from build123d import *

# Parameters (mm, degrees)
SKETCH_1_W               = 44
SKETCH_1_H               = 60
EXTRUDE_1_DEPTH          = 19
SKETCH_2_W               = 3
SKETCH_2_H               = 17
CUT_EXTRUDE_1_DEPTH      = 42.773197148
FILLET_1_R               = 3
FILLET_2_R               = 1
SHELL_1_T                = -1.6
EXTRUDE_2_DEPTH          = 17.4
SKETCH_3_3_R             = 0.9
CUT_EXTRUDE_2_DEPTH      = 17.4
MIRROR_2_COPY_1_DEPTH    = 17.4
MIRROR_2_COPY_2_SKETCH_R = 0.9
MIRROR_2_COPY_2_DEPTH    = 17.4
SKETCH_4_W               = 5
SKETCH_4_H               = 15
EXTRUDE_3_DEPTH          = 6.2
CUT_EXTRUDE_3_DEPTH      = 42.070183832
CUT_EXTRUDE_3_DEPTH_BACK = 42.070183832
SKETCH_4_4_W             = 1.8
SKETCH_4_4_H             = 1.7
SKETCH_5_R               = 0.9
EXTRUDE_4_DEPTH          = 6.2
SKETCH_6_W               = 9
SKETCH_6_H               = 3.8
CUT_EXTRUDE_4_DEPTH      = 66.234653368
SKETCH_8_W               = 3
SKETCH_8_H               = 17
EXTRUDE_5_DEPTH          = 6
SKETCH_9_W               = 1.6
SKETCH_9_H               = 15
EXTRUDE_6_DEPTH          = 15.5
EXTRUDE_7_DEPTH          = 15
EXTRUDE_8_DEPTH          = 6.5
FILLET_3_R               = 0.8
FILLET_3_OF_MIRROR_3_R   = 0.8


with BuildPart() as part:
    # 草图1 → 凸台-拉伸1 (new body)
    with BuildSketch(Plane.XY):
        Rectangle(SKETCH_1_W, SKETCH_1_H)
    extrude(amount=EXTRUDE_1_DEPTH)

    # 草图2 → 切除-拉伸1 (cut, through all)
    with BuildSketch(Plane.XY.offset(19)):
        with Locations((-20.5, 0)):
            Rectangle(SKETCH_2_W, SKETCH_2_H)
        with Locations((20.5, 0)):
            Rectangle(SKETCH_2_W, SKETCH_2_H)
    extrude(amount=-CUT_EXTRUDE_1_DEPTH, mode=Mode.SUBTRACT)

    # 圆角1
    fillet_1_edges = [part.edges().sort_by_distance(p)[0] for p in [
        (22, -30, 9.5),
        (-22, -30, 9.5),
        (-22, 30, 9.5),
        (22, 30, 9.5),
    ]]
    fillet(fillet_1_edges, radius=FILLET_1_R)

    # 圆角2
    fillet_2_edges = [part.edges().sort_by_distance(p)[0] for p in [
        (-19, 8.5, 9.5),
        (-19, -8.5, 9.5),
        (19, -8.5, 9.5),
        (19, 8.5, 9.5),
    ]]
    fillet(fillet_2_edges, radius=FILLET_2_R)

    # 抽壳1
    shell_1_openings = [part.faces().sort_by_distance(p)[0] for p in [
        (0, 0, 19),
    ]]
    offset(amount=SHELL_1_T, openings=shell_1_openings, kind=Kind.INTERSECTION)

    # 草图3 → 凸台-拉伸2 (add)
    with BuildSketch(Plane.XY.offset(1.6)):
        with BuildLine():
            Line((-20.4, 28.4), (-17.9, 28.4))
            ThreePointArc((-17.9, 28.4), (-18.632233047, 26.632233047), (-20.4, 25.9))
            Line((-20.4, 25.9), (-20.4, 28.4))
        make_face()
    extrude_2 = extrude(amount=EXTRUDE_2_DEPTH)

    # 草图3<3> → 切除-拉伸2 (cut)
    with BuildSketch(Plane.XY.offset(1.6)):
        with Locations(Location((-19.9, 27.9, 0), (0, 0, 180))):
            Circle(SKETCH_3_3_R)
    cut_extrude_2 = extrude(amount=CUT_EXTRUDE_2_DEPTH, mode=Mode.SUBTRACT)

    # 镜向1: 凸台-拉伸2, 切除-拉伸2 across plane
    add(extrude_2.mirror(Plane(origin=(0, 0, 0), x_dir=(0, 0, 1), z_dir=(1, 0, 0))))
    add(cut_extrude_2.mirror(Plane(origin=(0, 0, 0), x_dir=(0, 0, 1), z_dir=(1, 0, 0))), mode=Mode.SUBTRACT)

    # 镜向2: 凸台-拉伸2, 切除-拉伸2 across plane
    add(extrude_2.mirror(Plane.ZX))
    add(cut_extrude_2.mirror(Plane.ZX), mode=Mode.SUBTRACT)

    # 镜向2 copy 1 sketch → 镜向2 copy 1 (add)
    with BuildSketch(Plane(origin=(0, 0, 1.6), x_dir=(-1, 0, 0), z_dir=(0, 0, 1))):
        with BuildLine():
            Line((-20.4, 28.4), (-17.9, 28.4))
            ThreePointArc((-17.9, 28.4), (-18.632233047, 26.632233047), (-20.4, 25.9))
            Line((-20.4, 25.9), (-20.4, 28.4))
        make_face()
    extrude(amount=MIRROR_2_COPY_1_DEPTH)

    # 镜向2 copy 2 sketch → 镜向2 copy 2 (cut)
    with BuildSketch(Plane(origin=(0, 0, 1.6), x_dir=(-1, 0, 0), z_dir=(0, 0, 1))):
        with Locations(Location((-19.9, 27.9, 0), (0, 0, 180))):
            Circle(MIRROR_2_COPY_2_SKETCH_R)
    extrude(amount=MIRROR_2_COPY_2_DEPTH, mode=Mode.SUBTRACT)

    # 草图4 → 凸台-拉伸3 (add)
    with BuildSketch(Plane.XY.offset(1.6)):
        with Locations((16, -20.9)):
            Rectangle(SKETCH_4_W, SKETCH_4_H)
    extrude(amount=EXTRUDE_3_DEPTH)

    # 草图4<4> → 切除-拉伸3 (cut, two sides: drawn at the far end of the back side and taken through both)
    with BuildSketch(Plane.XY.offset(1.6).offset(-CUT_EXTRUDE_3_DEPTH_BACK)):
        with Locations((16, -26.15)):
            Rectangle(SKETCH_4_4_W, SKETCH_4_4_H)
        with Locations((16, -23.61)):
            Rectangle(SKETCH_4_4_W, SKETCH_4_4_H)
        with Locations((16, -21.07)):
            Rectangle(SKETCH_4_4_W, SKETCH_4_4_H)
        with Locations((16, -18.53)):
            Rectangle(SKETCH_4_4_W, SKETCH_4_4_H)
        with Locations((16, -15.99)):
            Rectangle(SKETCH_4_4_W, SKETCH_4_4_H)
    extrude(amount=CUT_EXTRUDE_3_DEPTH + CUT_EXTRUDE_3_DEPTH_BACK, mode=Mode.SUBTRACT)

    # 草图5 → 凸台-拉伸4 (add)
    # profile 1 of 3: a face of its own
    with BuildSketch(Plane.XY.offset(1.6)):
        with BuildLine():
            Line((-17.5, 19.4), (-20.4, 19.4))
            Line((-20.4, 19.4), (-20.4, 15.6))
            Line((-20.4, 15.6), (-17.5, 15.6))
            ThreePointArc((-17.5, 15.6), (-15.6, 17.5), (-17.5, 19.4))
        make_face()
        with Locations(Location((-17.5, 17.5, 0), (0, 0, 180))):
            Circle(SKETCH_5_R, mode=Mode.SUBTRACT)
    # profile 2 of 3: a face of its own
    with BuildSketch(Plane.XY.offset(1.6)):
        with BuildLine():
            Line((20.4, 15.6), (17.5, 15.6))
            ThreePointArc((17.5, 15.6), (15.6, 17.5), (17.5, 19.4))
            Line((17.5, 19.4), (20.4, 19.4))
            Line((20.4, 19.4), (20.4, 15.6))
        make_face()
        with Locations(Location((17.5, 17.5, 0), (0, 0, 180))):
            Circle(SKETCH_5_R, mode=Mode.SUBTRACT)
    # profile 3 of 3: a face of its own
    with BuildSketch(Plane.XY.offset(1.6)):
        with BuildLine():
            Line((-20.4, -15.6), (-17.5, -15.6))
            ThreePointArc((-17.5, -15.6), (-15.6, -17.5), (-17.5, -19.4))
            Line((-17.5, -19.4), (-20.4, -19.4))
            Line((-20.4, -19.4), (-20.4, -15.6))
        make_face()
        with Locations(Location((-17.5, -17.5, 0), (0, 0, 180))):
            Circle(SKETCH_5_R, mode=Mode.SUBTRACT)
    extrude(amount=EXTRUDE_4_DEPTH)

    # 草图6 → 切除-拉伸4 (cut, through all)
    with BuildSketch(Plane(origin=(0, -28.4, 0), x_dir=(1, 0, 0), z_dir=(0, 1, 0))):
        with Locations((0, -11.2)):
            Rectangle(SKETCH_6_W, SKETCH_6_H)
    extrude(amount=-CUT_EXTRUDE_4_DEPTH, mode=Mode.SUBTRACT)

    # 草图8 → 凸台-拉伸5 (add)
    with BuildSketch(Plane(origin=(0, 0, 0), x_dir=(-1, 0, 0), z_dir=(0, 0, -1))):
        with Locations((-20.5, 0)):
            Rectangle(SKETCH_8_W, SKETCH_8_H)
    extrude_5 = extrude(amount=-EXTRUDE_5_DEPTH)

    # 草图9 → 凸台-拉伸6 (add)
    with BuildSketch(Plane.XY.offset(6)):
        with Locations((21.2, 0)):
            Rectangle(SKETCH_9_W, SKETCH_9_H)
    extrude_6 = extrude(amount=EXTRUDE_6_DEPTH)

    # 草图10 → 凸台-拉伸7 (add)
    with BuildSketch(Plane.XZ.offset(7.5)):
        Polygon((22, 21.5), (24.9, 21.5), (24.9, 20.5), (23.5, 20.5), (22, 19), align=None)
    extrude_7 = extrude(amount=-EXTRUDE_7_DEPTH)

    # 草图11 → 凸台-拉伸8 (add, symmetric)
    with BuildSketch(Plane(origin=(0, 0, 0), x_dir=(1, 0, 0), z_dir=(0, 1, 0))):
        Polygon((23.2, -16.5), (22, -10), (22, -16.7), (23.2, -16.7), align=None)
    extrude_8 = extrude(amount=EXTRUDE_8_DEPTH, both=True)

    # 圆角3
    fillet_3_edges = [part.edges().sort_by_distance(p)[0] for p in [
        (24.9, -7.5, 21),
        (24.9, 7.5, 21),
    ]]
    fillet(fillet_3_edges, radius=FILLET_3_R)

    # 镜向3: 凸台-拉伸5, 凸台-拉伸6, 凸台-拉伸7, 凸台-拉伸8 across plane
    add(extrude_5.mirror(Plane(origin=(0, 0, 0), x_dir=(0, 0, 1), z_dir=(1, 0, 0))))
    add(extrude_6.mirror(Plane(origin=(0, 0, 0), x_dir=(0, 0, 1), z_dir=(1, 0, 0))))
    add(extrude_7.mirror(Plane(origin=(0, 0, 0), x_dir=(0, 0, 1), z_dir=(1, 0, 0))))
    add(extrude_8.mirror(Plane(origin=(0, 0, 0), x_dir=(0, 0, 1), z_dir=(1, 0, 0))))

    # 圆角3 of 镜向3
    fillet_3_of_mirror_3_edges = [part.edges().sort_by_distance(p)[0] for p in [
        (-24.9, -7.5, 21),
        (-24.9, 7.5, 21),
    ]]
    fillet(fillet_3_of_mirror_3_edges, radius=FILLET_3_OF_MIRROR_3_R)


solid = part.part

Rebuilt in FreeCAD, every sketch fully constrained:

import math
import FreeCAD as App
import Part
import Sketcher
from FreeCAD import Vector
Q = App.Units.Quantity


def edges_at(feature, points):
    """Names of the edges that pass closest to the given points."""
    edges = feature.Shape.Edges
    near = lambda p: min(range(len(edges)), key=lambda i: edges[i].distToShape(Part.Vertex(*p))[0])
    return sorted({f"Edge{near(p) + 1}" for p in points})


def faces_at(feature, points):
    """Names of the faces that lie closest to the given points."""
    faces = feature.Shape.Faces
    near = lambda p: min(range(len(faces)), key=lambda i: faces[i].distToShape(Part.Vertex(*p))[0])
    return sorted({f"Face{near(p) + 1}" for p in points})

doc = App.newDocument("Part")
body = doc.addObject("PartDesign::Body", "Body")

# Sketch on XY plane
sketch1 = body.newObject("Sketcher::SketchObject", "Sketch")
sketch1.AttachmentSupport = (doc.getObject("XY_Plane"), [""])
sketch1.MapMode = "FlatFace"
sketch1.addGeometry([
    Part.LineSegment(Vector(-22, 30, 0), Vector(-22, -30, 0)),
    Part.LineSegment(Vector(-22, -30, 0), Vector(22, -30, 0)),
    Part.LineSegment(Vector(22, -30, 0), Vector(22, 30, 0)),
    Part.LineSegment(Vector(22, 30, 0), Vector(-22, 30, 0)),
], False)
sketch1.addConstraint([
    Sketcher.Constraint("Coincident", 0, 2, 1, 1),
    Sketcher.Constraint("Coincident", 1, 2, 2, 1),
    Sketcher.Constraint("Coincident", 2, 2, 3, 1),
    Sketcher.Constraint("Coincident", 3, 2, 0, 1),
    Sketcher.Constraint("Vertical", 0),
    Sketcher.Constraint("Horizontal", 1),
    Sketcher.Constraint("Vertical", 2),
    Sketcher.Constraint("Horizontal", 3),
    Sketcher.Constraint("Symmetric", 0, 2, 2, 2, -1, 1),
    Sketcher.Constraint("DistanceX", 1, 1, 1, 2, 44.0),
    Sketcher.Constraint("DistanceY", 0, 2, 0, 1, 60.0),
])
pad1 = body.newObject("PartDesign::Pad", "Pad")
pad1.Profile = sketch1
pad1.Length = 19

# Sketch on XY plane
sketch2 = body.newObject("Sketcher::SketchObject", "Sketch001")
sketch2.AttachmentSupport = (doc.getObject("XY_Plane"), [""])
sketch2.MapMode = "FlatFace"
sketch2.AttachmentOffset = App.Placement(Vector(0, 0, 19), App.Rotation())
sketch2.addGeometry([
    Part.LineSegment(Vector(-22, 8.5, 0), Vector(-22, -8.5, 0)),  # 0
    Part.LineSegment(Vector(-22, -8.5, 0), Vector(-19, -8.5, 0)),  # 1
    Part.LineSegment(Vector(-19, -8.5, 0), Vector(-19, 8.5, 0)),  # 2
    Part.LineSegment(Vector(-19, 8.5, 0), Vector(-22, 8.5, 0)),  # 3
    Part.LineSegment(Vector(19, 8.5, 0), Vector(19, -8.5, 0)),  # 4
    Part.LineSegment(Vector(19, -8.5, 0), Vector(22, -8.5, 0)),  # 5
    Part.LineSegment(Vector(22, -8.5, 0), Vector(22, 8.5, 0)),  # 6
    Part.LineSegment(Vector(22, 8.5, 0), Vector(19, 8.5, 0)),  # 7
], False)
sketch2.addConstraint([
    Sketcher.Constraint("Coincident", 0, 2, 1, 1),
    Sketcher.Constraint("Coincident", 1, 2, 2, 1),
    Sketcher.Constraint("Coincident", 2, 2, 3, 1),
    Sketcher.Constraint("Coincident", 3, 2, 0, 1),
    Sketcher.Constraint("Coincident", 4, 2, 5, 1),
    Sketcher.Constraint("Coincident", 5, 2, 6, 1),
    Sketcher.Constraint("Coincident", 6, 2, 7, 1),
    Sketcher.Constraint("Coincident", 7, 2, 4, 1),
    Sketcher.Constraint("Vertical", 0),
    Sketcher.Constraint("Horizontal", 1),
    Sketcher.Constraint("Vertical", 2),
    Sketcher.Constraint("Horizontal", 3),
    Sketcher.Constraint("Vertical", 4),
    Sketcher.Constraint("Horizontal", 5),
    Sketcher.Constraint("Vertical", 6),
    Sketcher.Constraint("Horizontal", 7),
    Sketcher.Constraint("Symmetric", 2, 2, 4, 2, -1, 1),
    Sketcher.Constraint("Symmetric", 0, 2, 6, 2, -1, 1),
    Sketcher.Constraint("Horizontal", 1, 2, 4, 2),
    Sketcher.Constraint("DistanceX", 1, 1, 1, 2, 3.0),
    Sketcher.Constraint("DistanceY", 0, 2, 0, 1, 17.0),
    Sketcher.Constraint("DistanceX", 0, 2, -1, 1, 22.0),
])
pocket1 = body.newObject("PartDesign::Pocket", "Pocket")
pocket1.Profile = sketch2
pocket1.Type = "ThroughAll"
doc.recompute()

fillet = body.newObject("PartDesign::Fillet", "Fillet")
fillet.Base = (pocket1, edges_at(pocket1, [
    (22, -30, 9.5),
    (-22, -30, 9.5),
    (-22, 30, 9.5),
    (22, 30, 9.5),
]))
fillet.Radius = 3
doc.recompute()

fillet2 = body.newObject("PartDesign::Fillet", "Fillet001")
fillet2.Base = (fillet, edges_at(fillet, [
    (-19, 8.5, 9.5),
    (-19, -8.5, 9.5),
    (19, -8.5, 9.5),
    (19, 8.5, 9.5),
]))
fillet2.Radius = 1
doc.recompute()

thickness = body.newObject("PartDesign::Thickness", "Thickness")
thickness.Base = (fillet2, faces_at(fillet2, [(0, 0, 19)]))
thickness.Value = 1.6
thickness.Reversed = True
thickness.Join = "Intersection"

# Sketch on XY plane
sketch3 = body.newObject("Sketcher::SketchObject", "Sketch002")
sketch3.AttachmentSupport = (doc.getObject("XY_Plane"), [""])
sketch3.MapMode = "FlatFace"
sketch3.AttachmentOffset = App.Placement(Vector(0, 0, 1.6), App.Rotation())
sketch3.addGeometry([
    Part.LineSegment(Vector(-17.9, 28.4, 0), Vector(-20.4, 28.4, 0)),
    Part.LineSegment(Vector(-20.4, 28.4, 0), Vector(-20.4, 25.9, 0)),
    Part.ArcOfCircle(Part.Circle(Vector(-20.4, 28.4, 0), Vector(0, 0, 1), 2.5), math.radians(-90), math.radians(0)),
], False)
sketch3.addConstraint([
    Sketcher.Constraint("Coincident", 0, 2, 1, 1),
    Sketcher.Constraint("Coincident", 1, 2, 2, 1),
    Sketcher.Constraint("Coincident", 2, 2, 0, 1),
    Sketcher.Constraint("Horizontal", 0),
    Sketcher.Constraint("Vertical", 1),
    Sketcher.Constraint("Coincident", 0, 2, 2, 3),
    Sketcher.Constraint("Radius", 2, 2.5),
    Sketcher.Constraint("DistanceX", 2, 3, -1, 1, 20.4),
    Sketcher.Constraint("DistanceY", -1, 1, 2, 3, 28.4),
])
pad2 = body.newObject("PartDesign::Pad", "Pad001")
pad2.Profile = sketch3
pad2.Length = 17.4

# Sketch on XY plane
sketch4 = body.newObject("Sketcher::SketchObject", "Sketch003")
sketch4.AttachmentSupport = (doc.getObject("XY_Plane"), [""])
sketch4.MapMode = "FlatFace"
sketch4.AttachmentOffset = App.Placement(Vector(0, 0, 1.6), App.Rotation())
sketch4.addGeometry(Part.Circle(Vector(-19.9, 27.9, 0), Vector(0, 0, 1), 0.9), False)
sketch4.addConstraint([
    Sketcher.Constraint("Diameter", 0, 1.8),
    Sketcher.Constraint("DistanceX", 0, 3, -1, 1, 19.9),
    Sketcher.Constraint("DistanceY", -1, 1, 0, 3, 27.9),
])
pocket2 = body.newObject("PartDesign::Pocket", "Pocket001")
pocket2.Profile = sketch4
pocket2.Length = 17.4
pocket2.Reversed = True
doc.recompute()

mirrored = body.newObject("PartDesign::Mirrored", "Mirrored")
mirrored.Originals = [pad2, pocket2]
mirrored.MirrorPlane = (doc.getObject("YZ_Plane"), [""])
body.Tip = mirrored
doc.recompute()

mirrored2 = body.newObject("PartDesign::Mirrored", "Mirrored001")
mirrored2.Originals = [pad2, pocket2]
mirrored2.MirrorPlane = (doc.getObject("XZ_Plane"), [""])
body.Tip = mirrored2

# Sketch on XY plane
sketch5 = body.newObject("Sketcher::SketchObject", "Sketch004")
sketch5.AttachmentSupport = (doc.getObject("XY_Plane"), [""])
sketch5.MapMode = "FlatFace"
sketch5.AttachmentOffset = App.Placement(Vector(0, 0, 1.6), App.Rotation())
sketch5.addGeometry([
    Part.LineSegment(Vector(17.9, -28.4, 0), Vector(20.4, -28.4, 0)),
    Part.LineSegment(Vector(20.4, -28.4, 0), Vector(20.4, -25.9, 0)),
    Part.ArcOfCircle(Part.Circle(Vector(20.4, -28.4, 0), Vector(0, 0, 1), 2.5), math.radians(90), math.radians(180)),
], False)
sketch5.addConstraint([
    Sketcher.Constraint("Coincident", 0, 2, 1, 1),
    Sketcher.Constraint("Coincident", 1, 2, 2, 1),
    Sketcher.Constraint("Coincident", 2, 2, 0, 1),
    Sketcher.Constraint("Horizontal", 0),
    Sketcher.Constraint("Vertical", 1),
    Sketcher.Constraint("Coincident", 0, 2, 2, 3),
    Sketcher.Constraint("Radius", 2, 2.5),
    Sketcher.Constraint("DistanceX", -1, 1, 2, 3, 20.4),
    Sketcher.Constraint("DistanceY", 2, 3, -1, 1, 28.4),
])
pad3 = body.newObject("PartDesign::Pad", "Pad002")
pad3.Profile = sketch5
pad3.Length = 17.4

# Sketch on XY plane
sketch6 = body.newObject("Sketcher::SketchObject", "Sketch005")
sketch6.AttachmentSupport = (doc.getObject("XY_Plane"), [""])
sketch6.MapMode = "FlatFace"
sketch6.AttachmentOffset = App.Placement(Vector(0, 0, 1.6), App.Rotation())
sketch6.addGeometry(Part.Circle(Vector(19.9, -27.9, 0), Vector(0, 0, 1), 0.9), False)
sketch6.addConstraint([
    Sketcher.Constraint("Diameter", 0, 1.8),
    Sketcher.Constraint("DistanceX", -1, 1, 0, 3, 19.9),
    Sketcher.Constraint("DistanceY", 0, 3, -1, 1, 27.9),
])
pocket3 = body.newObject("PartDesign::Pocket", "Pocket002")
pocket3.Profile = sketch6
pocket3.Length = 17.4
pocket3.Reversed = True

# Sketch on XY plane
sketch7 = body.newObject("Sketcher::SketchObject", "Sketch006")
sketch7.AttachmentSupport = (doc.getObject("XY_Plane"), [""])
sketch7.MapMode = "FlatFace"
sketch7.AttachmentOffset = App.Placement(Vector(0, 0, 1.6), App.Rotation())
sketch7.addGeometry([
    Part.LineSegment(Vector(14, -13, 0), Vector(14, -28, 0)),
    Part.LineSegment(Vector(14, -28, 0), Vector(18, -28, 0)),
    Part.LineSegment(Vector(18, -28, 0), Vector(18, -13, 0)),
    Part.LineSegment(Vector(18, -13, 0), Vector(14, -13, 0)),
], False)
sketch7.addConstraint([
    Sketcher.Constraint("Coincident", 0, 2, 1, 1),
    Sketcher.Constraint("Coincident", 1, 2, 2, 1),
    Sketcher.Constraint("Coincident", 2, 2, 3, 1),
    Sketcher.Constraint("Coincident", 3, 2, 0, 1),
    Sketcher.Constraint("Vertical", 0),
    Sketcher.Constraint("Horizontal", 1),
    Sketcher.Constraint("Vertical", 2),
    Sketcher.Constraint("Horizontal", 3),
    Sketcher.Constraint("DistanceX", 1, 1, 1, 2, 5.0),
    Sketcher.Constraint("DistanceY", 0, 2, 0, 1, 15.0),
    Sketcher.Constraint("DistanceX", -1, 1, 0, 2, 13.5),
    Sketcher.Constraint("DistanceY", 0, 2, -1, 1, 28.4),
])
pad4 = body.newObject("PartDesign::Pad", "Pad003")
pad4.Profile = sketch7
pad4.Length = 6.2

# Sketch on XY plane
sketch8 = body.newObject("Sketcher::SketchObject", "Sketch007")
sketch8.AttachmentSupport = (doc.getObject("XY_Plane"), [""])
sketch8.MapMode = "FlatFace"
sketch8.AttachmentOffset = App.Placement(Vector(0, 0, 1.6), App.Rotation())
sketch8.addGeometry([
    Part.LineSegment(Vector(15.1, -25.3, 0), Vector(15.1, -27, 0)),  # 0
    Part.LineSegment(Vector(15.1, -27, 0), Vector(16.9, -27, 0)),  # 1
    Part.LineSegment(Vector(16.9, -27, 0), Vector(16.9, -25.3, 0)),  # 2
    Part.LineSegment(Vector(16.9, -25.3, 0), Vector(15.1, -25.3, 0)),  # 3
    Part.LineSegment(Vector(15.1, -22.8, 0), Vector(15.1, -24.5, 0)),  # 4
    Part.LineSegment(Vector(15.1, -24.5, 0), Vector(16.9, -24.5, 0)),  # 5
    Part.LineSegment(Vector(16.9, -24.5, 0), Vector(16.9, -22.8, 0)),  # 6
    Part.LineSegment(Vector(16.9, -22.8, 0), Vector(15.1, -22.8, 0)),  # 7
    Part.LineSegment(Vector(15.1, -20.2, 0), Vector(15.1, -21.9, 0)),  # 8
    Part.LineSegment(Vector(15.1, -21.9, 0), Vector(16.9, -21.9, 0)),  # 9
    Part.LineSegment(Vector(16.9, -21.9, 0), Vector(16.9, -20.2, 0)),  # 10
    Part.LineSegment(Vector(16.9, -20.2, 0), Vector(15.1, -20.2, 0)),  # 11
    Part.LineSegment(Vector(15.1, -17.7, 0), Vector(15.1, -19.4, 0)),  # 12
    Part.LineSegment(Vector(15.1, -19.4, 0), Vector(16.9, -19.4, 0)),  # 13
    Part.LineSegment(Vector(16.9, -19.4, 0), Vector(16.9, -17.7, 0)),  # 14
    Part.LineSegment(Vector(16.9, -17.7, 0), Vector(15.1, -17.7, 0)),  # 15
    Part.LineSegment(Vector(15.1, -15.1, 0), Vector(15.1, -16.8, 0)),  # 16
    Part.LineSegment(Vector(15.1, -16.8, 0), Vector(16.9, -16.8, 0)),  # 17
    Part.LineSegment(Vector(16.9, -16.8, 0), Vector(16.9, -15.1, 0)),  # 18
    Part.LineSegment(Vector(16.9, -15.1, 0), Vector(15.1, -15.1, 0)),  # 19
], False)
sketch8.addConstraint([
    Sketcher.Constraint("Coincident", 0, 2, 1, 1),
    Sketcher.Constraint("Coincident", 1, 2, 2, 1),
    Sketcher.Constraint("Coincident", 2, 2, 3, 1),
    Sketcher.Constraint("Coincident", 3, 2, 0, 1),
    Sketcher.Constraint("Coincident", 4, 2, 5, 1),
    Sketcher.Constraint("Coincident", 5, 2, 6, 1),
    Sketcher.Constraint("Coincident", 6, 2, 7, 1),
    Sketcher.Constraint("Coincident", 7, 2, 4, 1),
    Sketcher.Constraint("Coincident", 8, 2, 9, 1),
    Sketcher.Constraint("Coincident", 9, 2, 10, 1),
    Sketcher.Constraint("Coincident", 10, 2, 11, 1),
    Sketcher.Constraint("Coincident", 11, 2, 8, 1),
    Sketcher.Constraint("Coincident", 12, 2, 13, 1),
    Sketcher.Constraint("Coincident", 13, 2, 14, 1),
    Sketcher.Constraint("Coincident", 14, 2, 15, 1),
    Sketcher.Constraint("Coincident", 15, 2, 12, 1),
    Sketcher.Constraint("Coincident", 16, 2, 17, 1),
    Sketcher.Constraint("Coincident", 17, 2, 18, 1),
    Sketcher.Constraint("Coincident", 18, 2, 19, 1),
    Sketcher.Constraint("Coincident", 19, 2, 16, 1),
    Sketcher.Constraint("Vertical", 0),
    Sketcher.Constraint("Horizontal", 1),
    Sketcher.Constraint("Vertical", 2),
    Sketcher.Constraint("Horizontal", 3),
    Sketcher.Constraint("Vertical", 4),
    Sketcher.Constraint("Horizontal", 5),
    Sketcher.Constraint("Vertical", 6),
    Sketcher.Constraint("Horizontal", 7),
    Sketcher.Constraint("Vertical", 8),
    Sketcher.Constraint("Horizontal", 9),
    Sketcher.Constraint("Vertical", 10),
    Sketcher.Constraint("Horizontal", 11),
    Sketcher.Constraint("Vertical", 12),
    Sketcher.Constraint("Horizontal", 13),
    Sketcher.Constraint("Vertical", 14),
    Sketcher.Constraint("Horizontal", 15),
    Sketcher.Constraint("Vertical", 16),
    Sketcher.Constraint("Horizontal", 17),
    Sketcher.Constraint("Vertical", 18),
    Sketcher.Constraint("Horizontal", 19),
    Sketcher.Constraint("Vertical", 3, 2, 4, 2),
    Sketcher.Constraint("Vertical", 2, 2, 5, 2),
    Sketcher.Constraint("Vertical", 7, 2, 8, 2),
    Sketcher.Constraint("Vertical", 6, 2, 9, 2),
    Sketcher.Constraint("Vertical", 11, 2, 12, 2),
    Sketcher.Constraint("Vertical", 10, 2, 13, 2),
    Sketcher.Constraint("Vertical", 15, 2, 16, 2),
    Sketcher.Constraint("Vertical", 14, 2, 17, 2),
    Sketcher.Constraint("Equal", 2, 4),
    Sketcher.Constraint("Equal", 6, 8),
    Sketcher.Constraint("Equal", 10, 12),
    Sketcher.Constraint("Equal", 14, 16),
    Sketcher.Constraint("DistanceX", 1, 1, 1, 2, 1.8),
    Sketcher.Constraint("DistanceY", 0, 2, 0, 1, 1.7),
    Sketcher.Constraint("DistanceY", 0, 2, -1, 1, 27.0),
    Sketcher.Constraint("DistanceX", -1, 1, 0, 2, 15.1),
    Sketcher.Constraint("DistanceY", 4, 2, -1, 1, 24.46),
    Sketcher.Constraint("DistanceY", 8, 2, -1, 1, 21.92),
    Sketcher.Constraint("DistanceY", 12, 2, -1, 1, 19.38),
    Sketcher.Constraint("DistanceY", 16, 2, -1, 1, 16.84),
])
pocket4 = body.newObject("PartDesign::Pocket", "Pocket003")
pocket4.Profile = sketch8
pocket4.Type = "ThroughAll"
pocket4.Midplane = True

# Sketch on XY plane
sketch9 = body.newObject("Sketcher::SketchObject", "Sketch008")
sketch9.AttachmentSupport = (doc.getObject("XY_Plane"), [""])
sketch9.MapMode = "FlatFace"
sketch9.AttachmentOffset = App.Placement(Vector(0, 0, 1.6), App.Rotation())
sketch9.addGeometry([
    Part.LineSegment(Vector(-17.5, 19.4, 0), Vector(-20.4, 19.4, 0)),  # 0
    Part.LineSegment(Vector(-20.4, 19.4, 0), Vector(-20.4, 15.6, 0)),  # 1
    Part.LineSegment(Vector(-20.4, 15.6, 0), Vector(-17.5, 15.6, 0)),  # 2
    Part.ArcOfCircle(Part.Circle(Vector(-17.5, 17.5, 0), Vector(0, 0, 1), 1.9), math.radians(-90), math.radians(90)),  # 3
    Part.Circle(Vector(-17.5, 17.5, 0), Vector(0, 0, 1), 0.9),  # 4
    Part.LineSegment(Vector(17.5, 15.6, 0), Vector(20.4, 15.6, 0)),  # 5
    Part.LineSegment(Vector(20.4, 15.6, 0), Vector(20.4, 19.4, 0)),  # 6
    Part.LineSegment(Vector(20.4, 19.4, 0), Vector(17.5, 19.4, 0)),  # 7
    Part.ArcOfCircle(Part.Circle(Vector(17.5, 17.5, 0), Vector(0, 0, 1), 1.9), math.radians(90), math.radians(270)),  # 8
    Part.Circle(Vector(17.5, 17.5, 0), Vector(0, 0, 1), 0.9),  # 9
    Part.LineSegment(Vector(-17.5, -15.6, 0), Vector(-20.4, -15.6, 0)),  # 10
    Part.LineSegment(Vector(-20.4, -15.6, 0), Vector(-20.4, -19.4, 0)),  # 11
    Part.LineSegment(Vector(-20.4, -19.4, 0), Vector(-17.5, -19.4, 0)),  # 12
    Part.ArcOfCircle(Part.Circle(Vector(-17.5, -17.5, 0), Vector(0, 0, 1), 1.9), math.radians(-90), math.radians(90)),  # 13
    Part.Circle(Vector(-17.5, -17.5, 0), Vector(0, 0, 1), 0.9),  # 14
], False)
sketch9.addConstraint([
    Sketcher.Constraint("Coincident", 0, 2, 1, 1),
    Sketcher.Constraint("Coincident", 1, 2, 2, 1),
    Sketcher.Constraint("Tangent", 2, 2, 3, 1),
    Sketcher.Constraint("Tangent", 3, 2, 0, 1),
    Sketcher.Constraint("Coincident", 5, 2, 6, 1),
    Sketcher.Constraint("Coincident", 6, 2, 7, 1),
    Sketcher.Constraint("Tangent", 7, 2, 8, 1),
    Sketcher.Constraint("Tangent", 8, 2, 5, 1),
    Sketcher.Constraint("Coincident", 10, 2, 11, 1),
    Sketcher.Constraint("Coincident", 11, 2, 12, 1),
    Sketcher.Constraint("Tangent", 12, 2, 13, 1),
    Sketcher.Constraint("Tangent", 13, 2, 10, 1),
    Sketcher.Constraint("Horizontal", 0),
    Sketcher.Constraint("Vertical", 1),
    Sketcher.Constraint("Horizontal", 2),
    Sketcher.Constraint("Horizontal", 5),
    Sketcher.Constraint("Vertical", 6),
    Sketcher.Constraint("Horizontal", 7),
    Sketcher.Constraint("Horizontal", 10),
    Sketcher.Constraint("Vertical", 11),
    Sketcher.Constraint("Horizontal", 12),
    Sketcher.Constraint("Coincident", 4, 3, 3, 3),
    Sketcher.Constraint("Coincident", 9, 3, 8, 3),
    Sketcher.Constraint("Coincident", 14, 3, 13, 3),
    Sketcher.Constraint("Equal", 3, 8),
    Sketcher.Constraint("Equal", 4, 9),
    Sketcher.Constraint("Equal", 8, 13),
    Sketcher.Constraint("Equal", 9, 14),
    Sketcher.Constraint("Symmetric", 8, 3, 13, 3, -1, 1),
    Sketcher.Constraint("Symmetric", 3, 3, 8, 3, -2),
    Sketcher.Constraint("Vertical", 1, 2, 10, 2),
    Sketcher.Constraint("Equal", 2, 5),
    Sketcher.Constraint("Diameter", 4, 1.8),
    Sketcher.Constraint("Radius", 3, 1.9),
    Sketcher.Constraint("DistanceX", 0, 2, 0, 1, 2.9),
    Sketcher.Constraint("DistanceX", 3, 3, 8, 3, 35.0),
    Sketcher.Constraint("DistanceY", 13, 3, 3, 3, 35.0),
])
pad5 = body.newObject("PartDesign::Pad", "Pad004")
pad5.Profile = sketch9
pad5.Length = 6.2

# Sketch on XZ plane
sketch10 = body.newObject("Sketcher::SketchObject", "Sketch009")
sketch10.AttachmentSupport = (doc.getObject("XZ_Plane"), [""])
sketch10.MapMode = "FlatFace"
sketch10.AttachmentOffset = App.Placement(Vector(0, 0, 28.4), App.Rotation())
sketch10.addGeometry([
    Part.LineSegment(Vector(-4.5, 9.3, 0), Vector(-4.5, 13.1, 0)),
    Part.LineSegment(Vector(-4.5, 13.1, 0), Vector(4.5, 13.1, 0)),
    Part.LineSegment(Vector(4.5, 13.1, 0), Vector(4.5, 9.3, 0)),
    Part.LineSegment(Vector(4.5, 9.3, 0), Vector(-4.5, 9.3, 0)),
], False)
sketch10.addConstraint([
    Sketcher.Constraint("Coincident", 0, 2, 1, 1),
    Sketcher.Constraint("Coincident", 1, 2, 2, 1),
    Sketcher.Constraint("Coincident", 2, 2, 3, 1),
    Sketcher.Constraint("Coincident", 3, 2, 0, 1),
    Sketcher.Constraint("Vertical", 0),
    Sketcher.Constraint("Horizontal", 1),
    Sketcher.Constraint("Vertical", 2),
    Sketcher.Constraint("Horizontal", 3),
    Sketcher.Constraint("DistanceX", 1, 1, 1, 2, 9.0),
    Sketcher.Constraint("DistanceY", 0, 1, 0, 2, 3.8),
    Sketcher.Constraint("DistanceX", 0, 2, -1, 1, 4.5),
    Sketcher.Constraint("DistanceY", -1, 1, 0, 2, 13.1),
])
pocket5 = body.newObject("PartDesign::Pocket", "Pocket004")
pocket5.Profile = sketch10
pocket5.Type = "ThroughAll"
pocket5.Reversed = True

# Sketch on XY plane
sketch11 = body.newObject("Sketcher::SketchObject", "Sketch010")
sketch11.AttachmentSupport = (doc.getObject("XY_Plane"), [""])
sketch11.MapMode = "FlatFace"
sketch11.addGeometry([
    Part.LineSegment(Vector(22, 8.5, 0), Vector(22, -8.5, 0)),
    Part.LineSegment(Vector(22, -8.5, 0), Vector(19, -8.5, 0)),
    Part.LineSegment(Vector(19, -8.5, 0), Vector(19, 8.5, 0)),
    Part.LineSegment(Vector(19, 8.5, 0), Vector(22, 8.5, 0)),
], False)
sketch11.addConstraint([
    Sketcher.Constraint("Coincident", 0, 2, 1, 1),
    Sketcher.Constraint("Coincident", 1, 2, 2, 1),
    Sketcher.Constraint("Coincident", 2, 2, 3, 1),
    Sketcher.Constraint("Coincident", 3, 2, 0, 1),
    Sketcher.Constraint("Vertical", 0),
    Sketcher.Constraint("Horizontal", 1),
    Sketcher.Constraint("Vertical", 2),
    Sketcher.Constraint("Horizontal", 3),
    Sketcher.Constraint("DistanceX", 1, 2, 1, 1, 3.0),
    Sketcher.Constraint("DistanceY", 0, 2, 0, 1, 17.0),
    Sketcher.Constraint("DistanceX", -1, 1, 0, 2, 22.0),
    Sketcher.Constraint("DistanceY", 0, 2, -1, 1, 8.5),
])
pad6 = body.newObject("PartDesign::Pad", "Pad005")
pad6.Profile = sketch11
pad6.Length = 6

# Sketch on XY plane
sketch12 = body.newObject("Sketcher::SketchObject", "Sketch011")
sketch12.AttachmentSupport = (doc.getObject("XY_Plane"), [""])
sketch12.MapMode = "FlatFace"
sketch12.AttachmentOffset = App.Placement(Vector(0, 0, 6), App.Rotation())
sketch12.addGeometry([
    Part.LineSegment(Vector(20.4, 7.5, 0), Vector(20.4, -7.5, 0)),
    Part.LineSegment(Vector(20.4, -7.5, 0), Vector(22, -7.5, 0)),
    Part.LineSegment(Vector(22, -7.5, 0), Vector(22, 7.5, 0)),
    Part.LineSegment(Vector(22, 7.5, 0), Vector(20.4, 7.5, 0)),
], False)
sketch12.addConstraint([
    Sketcher.Constraint("Coincident", 0, 2, 1, 1),
    Sketcher.Constraint("Coincident", 1, 2, 2, 1),
    Sketcher.Constraint("Coincident", 2, 2, 3, 1),
    Sketcher.Constraint("Coincident", 3, 2, 0, 1),
    Sketcher.Constraint("Vertical", 0),
    Sketcher.Constraint("Horizontal", 1),
    Sketcher.Constraint("Vertical", 2),
    Sketcher.Constraint("Horizontal", 3),
    Sketcher.Constraint("DistanceY", 0, 2, 0, 1, 15.0),
    Sketcher.Constraint("DistanceX", 1, 1, 1, 2, 1.6),
    Sketcher.Constraint("DistanceX", -1, 1, 1, 2, 22.0),
    Sketcher.Constraint("DistanceY", 0, 2, -1, 1, 7.5),
])
pad7 = body.newObject("PartDesign::Pad", "Pad006")
pad7.Profile = sketch12
pad7.Length = 15.5

# Sketch on XZ plane
sketch13 = body.newObject("Sketcher::SketchObject", "Sketch012")
sketch13.AttachmentSupport = (doc.getObject("XZ_Plane"), [""])
sketch13.MapMode = "FlatFace"
sketch13.AttachmentOffset = App.Placement(Vector(0, 0, 7.5), App.Rotation())
sketch13.addGeometry([
    Part.LineSegment(Vector(24.9, 21.5, 0), Vector(22, 21.5, 0)),  # 0
    Part.LineSegment(Vector(22, 21.5, 0), Vector(22, 19, 0)),  # 1
    Part.LineSegment(Vector(22, 19, 0), Vector(23.5, 20.5, 0)),  # 2
    Part.LineSegment(Vector(23.5, 20.5, 0), Vector(24.9, 20.5, 0)),  # 3
    Part.LineSegment(Vector(24.9, 20.5, 0), Vector(24.9, 21.5, 0)),  # 4
], False)
sketch13.addConstraint([
    Sketcher.Constraint("Coincident", 0, 2, 1, 1),
    Sketcher.Constraint("Coincident", 1, 2, 2, 1),
    Sketcher.Constraint("Coincident", 2, 2, 3, 1),
    Sketcher.Constraint("Coincident", 3, 2, 4, 1),
    Sketcher.Constraint("Coincident", 4, 2, 0, 1),
    Sketcher.Constraint("Horizontal", 0),
    Sketcher.Constraint("Vertical", 1),
    Sketcher.Constraint("Horizontal", 3),
    Sketcher.Constraint("Vertical", 4),
    Sketcher.Constraint("DistanceY", 4, 1, 4, 2, 1.0),
    Sketcher.Constraint("Angle", 2, Q("45 deg")),
    Sketcher.Constraint("DistanceX", 0, 2, 0, 1, 2.9),
    Sketcher.Constraint("DistanceX", 3, 1, 3, 2, 1.4),
    Sketcher.Constraint("DistanceX", -1, 1, 0, 2, 22.0),
    Sketcher.Constraint("DistanceY", -1, 1, 1, 2, 19.0),
])
pad8 = body.newObject("PartDesign::Pad", "Pad007")
pad8.Profile = sketch13
pad8.Length = 15
pad8.Reversed = True

# Sketch on XZ plane
sketch14 = body.newObject("Sketcher::SketchObject", "Sketch013")
sketch14.AttachmentSupport = (doc.getObject("XZ_Plane"), [""])
sketch14.MapMode = "FlatFace"
sketch14.addGeometry([
    Part.LineSegment(Vector(23.2, 16.5, 0), Vector(22, 10, 0)),
    Part.LineSegment(Vector(22, 10, 0), Vector(22, 16.7, 0)),
    Part.LineSegment(Vector(22, 16.7, 0), Vector(23.2, 16.7, 0)),
    Part.LineSegment(Vector(23.2, 16.7, 0), Vector(23.2, 16.5, 0)),
], False)
sketch14.addConstraint([
    Sketcher.Constraint("Coincident", 0, 2, 1, 1),
    Sketcher.Constraint("Coincident", 1, 2, 2, 1),
    Sketcher.Constraint("Coincident", 2, 2, 3, 1),
    Sketcher.Constraint("Coincident", 3, 2, 0, 1),
    Sketcher.Constraint("Vertical", 1),
    Sketcher.Constraint("Horizontal", 2),
    Sketcher.Constraint("Vertical", 3),
    Sketcher.Constraint("DistanceX", 2, 1, 2, 2, 1.2),
    Sketcher.Constraint("DistanceY", 1, 1, 1, 2, 6.7),
    Sketcher.Constraint("DistanceY", 3, 2, 3, 1, 0.2),
    Sketcher.Constraint("DistanceX", -1, 1, 0, 2, 22.0),
    Sketcher.Constraint("DistanceY", -1, 1, 0, 2, 10.0),
])
pad9 = body.newObject("PartDesign::Pad", "Pad008")
pad9.Profile = sketch14
pad9.Length = 13
pad9.Midplane = True
doc.recompute()

fillet3 = body.newObject("PartDesign::Fillet", "Fillet002")
fillet3.Base = (pad9, edges_at(pad9, [(24.9, -7.5, 21), (24.9, 7.5, 21)]))
fillet3.Radius = 0.8
doc.recompute()

mirrored3 = body.newObject("PartDesign::Mirrored", "Mirrored002")
mirrored3.Originals = [pad6, pad7, pad8, pad9]
mirrored3.MirrorPlane = (doc.getObject("YZ_Plane"), [""])
body.Tip = mirrored3
doc.recompute()

fillet4 = body.newObject("PartDesign::Fillet", "Fillet003")
fillet4.Base = (mirrored3, edges_at(mirrored3, [(-24.9, -7.5, 21), (-24.9, 7.5, 21)]))
fillet4.Radius = 0.8

doc.recompute()
